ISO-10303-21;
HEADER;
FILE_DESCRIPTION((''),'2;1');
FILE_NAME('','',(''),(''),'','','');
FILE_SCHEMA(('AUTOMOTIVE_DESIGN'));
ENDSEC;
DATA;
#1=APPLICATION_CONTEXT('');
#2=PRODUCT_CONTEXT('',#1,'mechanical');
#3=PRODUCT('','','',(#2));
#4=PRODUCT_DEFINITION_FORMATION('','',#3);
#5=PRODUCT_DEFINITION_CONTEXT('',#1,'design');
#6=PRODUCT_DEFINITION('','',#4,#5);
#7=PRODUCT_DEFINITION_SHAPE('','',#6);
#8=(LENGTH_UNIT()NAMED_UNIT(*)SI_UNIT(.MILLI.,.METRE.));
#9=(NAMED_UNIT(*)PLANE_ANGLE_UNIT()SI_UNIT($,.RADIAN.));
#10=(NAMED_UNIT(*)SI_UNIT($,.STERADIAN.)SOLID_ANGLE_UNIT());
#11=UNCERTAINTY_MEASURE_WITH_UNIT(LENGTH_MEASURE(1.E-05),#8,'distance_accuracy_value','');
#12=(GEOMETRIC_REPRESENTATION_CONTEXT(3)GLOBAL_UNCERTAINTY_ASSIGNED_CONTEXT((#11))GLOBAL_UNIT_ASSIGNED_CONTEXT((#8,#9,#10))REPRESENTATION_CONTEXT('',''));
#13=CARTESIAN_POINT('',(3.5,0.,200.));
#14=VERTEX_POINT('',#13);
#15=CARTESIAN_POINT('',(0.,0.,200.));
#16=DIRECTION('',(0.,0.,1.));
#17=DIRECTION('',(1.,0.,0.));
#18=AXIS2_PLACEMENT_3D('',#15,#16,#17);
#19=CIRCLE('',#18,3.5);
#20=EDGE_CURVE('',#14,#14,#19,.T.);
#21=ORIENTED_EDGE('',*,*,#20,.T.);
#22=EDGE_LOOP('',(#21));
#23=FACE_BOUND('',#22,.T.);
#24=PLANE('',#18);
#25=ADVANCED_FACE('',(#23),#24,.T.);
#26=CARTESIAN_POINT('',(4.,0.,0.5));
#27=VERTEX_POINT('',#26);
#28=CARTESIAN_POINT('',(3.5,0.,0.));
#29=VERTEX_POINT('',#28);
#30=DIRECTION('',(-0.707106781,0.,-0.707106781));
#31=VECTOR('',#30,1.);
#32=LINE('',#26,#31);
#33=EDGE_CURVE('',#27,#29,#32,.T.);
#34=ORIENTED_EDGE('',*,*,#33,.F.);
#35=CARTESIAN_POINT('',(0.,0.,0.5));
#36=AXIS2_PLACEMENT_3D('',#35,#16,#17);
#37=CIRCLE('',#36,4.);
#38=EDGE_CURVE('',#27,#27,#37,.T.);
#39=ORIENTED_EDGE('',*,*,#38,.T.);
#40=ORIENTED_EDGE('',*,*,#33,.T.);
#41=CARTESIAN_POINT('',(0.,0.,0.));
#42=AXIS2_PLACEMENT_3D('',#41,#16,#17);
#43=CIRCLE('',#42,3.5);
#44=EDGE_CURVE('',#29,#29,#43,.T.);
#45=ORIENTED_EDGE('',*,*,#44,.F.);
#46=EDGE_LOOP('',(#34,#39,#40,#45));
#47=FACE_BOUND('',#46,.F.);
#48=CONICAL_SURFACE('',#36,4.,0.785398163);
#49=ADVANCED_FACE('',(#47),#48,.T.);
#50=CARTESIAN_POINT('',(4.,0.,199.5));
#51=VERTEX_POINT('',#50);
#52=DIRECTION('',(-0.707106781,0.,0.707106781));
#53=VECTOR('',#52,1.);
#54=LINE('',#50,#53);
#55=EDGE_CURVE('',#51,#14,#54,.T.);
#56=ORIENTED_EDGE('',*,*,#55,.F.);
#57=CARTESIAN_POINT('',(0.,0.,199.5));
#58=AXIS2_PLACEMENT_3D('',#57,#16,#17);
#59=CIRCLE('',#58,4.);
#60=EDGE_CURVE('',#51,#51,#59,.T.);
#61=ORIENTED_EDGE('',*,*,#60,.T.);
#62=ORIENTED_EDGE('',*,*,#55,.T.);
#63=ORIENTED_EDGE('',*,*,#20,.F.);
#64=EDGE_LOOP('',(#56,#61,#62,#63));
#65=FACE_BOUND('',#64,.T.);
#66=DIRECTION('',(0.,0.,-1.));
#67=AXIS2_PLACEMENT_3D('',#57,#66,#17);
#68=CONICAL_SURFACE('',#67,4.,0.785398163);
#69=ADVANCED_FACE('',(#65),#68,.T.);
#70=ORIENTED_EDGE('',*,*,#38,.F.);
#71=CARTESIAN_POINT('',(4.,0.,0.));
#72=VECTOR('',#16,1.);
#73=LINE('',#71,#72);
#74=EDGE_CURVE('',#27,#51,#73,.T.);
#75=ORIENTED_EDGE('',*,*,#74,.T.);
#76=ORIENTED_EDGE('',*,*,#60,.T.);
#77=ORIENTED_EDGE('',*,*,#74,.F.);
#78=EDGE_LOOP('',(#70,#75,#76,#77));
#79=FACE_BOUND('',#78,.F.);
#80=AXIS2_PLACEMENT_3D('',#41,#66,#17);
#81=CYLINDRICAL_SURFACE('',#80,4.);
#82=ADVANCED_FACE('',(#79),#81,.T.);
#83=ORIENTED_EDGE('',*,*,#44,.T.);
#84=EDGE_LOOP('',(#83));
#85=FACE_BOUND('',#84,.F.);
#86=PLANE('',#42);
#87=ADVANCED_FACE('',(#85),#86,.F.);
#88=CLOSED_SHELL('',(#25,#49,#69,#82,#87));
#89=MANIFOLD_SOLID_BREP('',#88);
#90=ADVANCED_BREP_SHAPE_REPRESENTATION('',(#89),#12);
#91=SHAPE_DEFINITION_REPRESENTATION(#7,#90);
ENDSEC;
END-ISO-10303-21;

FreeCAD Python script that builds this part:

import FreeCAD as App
import Part
import Sketcher

V = App.Vector


def edges_at(feature, points):
    """Names of the edges that pass closest to the given points."""
    edges = feature.Shape.Edges
    near = lambda p: min(range(len(edges)), key=lambda i: edges[i].distToShape(Part.Vertex(*p))[0])
    return sorted({f"Edge{near(p) + 1}" for p in points})

doc = App.newDocument("Part")
body = doc.addObject("PartDesign::Body", "Body")

# Sketch on XY plane
sketch1 = body.newObject("Sketcher::SketchObject", "Sketch")
sketch1.AttachmentSupport = (doc.getObject("XY_Plane"), [""])
sketch1.MapMode = "FlatFace"
sketch1.addGeometry(Part.Circle(V(0, 0, 0), V(0, 0, 1), 4), False)
sketch1.addConstraint([
    Sketcher.Constraint("Coincident", 0, 3, -1, 1),
    Sketcher.Constraint("Diameter", 0, 8.0),
])
pad1 = body.newObject("PartDesign::Pad", "Pad")
pad1.Profile = sketch1
pad1.Length = 200
doc.recompute()

chamfer = body.newObject("PartDesign::Chamfer", "Chamfer")
chamfer.Base = (pad1, edges_at(pad1, [(-4, 0, 0), (-4, 0, 200)]))
chamfer.Size = 0.5

doc.recompute()
